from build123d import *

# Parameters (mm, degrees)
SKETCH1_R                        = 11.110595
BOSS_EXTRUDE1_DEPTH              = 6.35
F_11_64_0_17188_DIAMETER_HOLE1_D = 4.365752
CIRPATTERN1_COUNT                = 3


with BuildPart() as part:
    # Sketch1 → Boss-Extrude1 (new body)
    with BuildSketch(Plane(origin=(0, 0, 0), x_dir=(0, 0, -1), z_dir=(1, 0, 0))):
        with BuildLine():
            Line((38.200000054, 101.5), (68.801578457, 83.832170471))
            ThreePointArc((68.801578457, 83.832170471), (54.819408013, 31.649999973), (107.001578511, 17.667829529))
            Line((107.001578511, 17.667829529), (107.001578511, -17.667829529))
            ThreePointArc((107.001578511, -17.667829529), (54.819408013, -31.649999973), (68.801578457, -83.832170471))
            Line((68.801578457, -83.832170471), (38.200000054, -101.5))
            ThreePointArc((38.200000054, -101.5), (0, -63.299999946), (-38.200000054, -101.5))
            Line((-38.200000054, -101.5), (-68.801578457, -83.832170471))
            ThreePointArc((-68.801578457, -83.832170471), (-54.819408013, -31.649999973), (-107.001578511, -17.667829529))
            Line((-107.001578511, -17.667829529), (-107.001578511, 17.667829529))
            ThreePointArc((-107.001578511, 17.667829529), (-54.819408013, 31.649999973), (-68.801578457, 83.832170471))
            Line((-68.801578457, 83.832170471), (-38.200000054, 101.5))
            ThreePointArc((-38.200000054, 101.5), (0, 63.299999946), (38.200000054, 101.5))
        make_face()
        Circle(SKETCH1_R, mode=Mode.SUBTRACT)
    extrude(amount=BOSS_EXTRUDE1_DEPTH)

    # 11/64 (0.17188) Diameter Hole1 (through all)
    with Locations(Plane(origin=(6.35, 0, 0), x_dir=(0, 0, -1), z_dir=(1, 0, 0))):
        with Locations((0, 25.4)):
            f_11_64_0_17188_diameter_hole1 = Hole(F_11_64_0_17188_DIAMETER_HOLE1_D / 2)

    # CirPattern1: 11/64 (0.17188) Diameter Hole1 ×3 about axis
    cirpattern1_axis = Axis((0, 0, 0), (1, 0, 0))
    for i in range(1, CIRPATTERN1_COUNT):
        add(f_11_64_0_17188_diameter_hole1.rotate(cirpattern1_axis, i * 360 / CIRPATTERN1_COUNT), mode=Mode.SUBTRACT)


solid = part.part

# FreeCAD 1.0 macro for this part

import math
import FreeCAD as App
import Part
import Sketcher

V = App.Vector
Q = App.Units.Quantity

doc = App.newDocument("Part")
body = doc.addObject("PartDesign::Body", "Body")

sketch1 = doc.addObject("Sketcher::SketchObject", "Sketch")
body.addObject(sketch1)
sketch1.AttachmentSupport = (doc.YZ_Plane, [""])
sketch1.MapMode = "FlatFace"
sketch1.addGeometry([
    Part.LineSegment(V(84, -69, 0), V(102, -38, 0)),
    Part.ArcOfCircle(Part.Circle(V(102, 0, 0), V(0, 0, 1), 38), math.radians(90), math.radians(270)),
    Part.LineSegment(V(102, 38, 0), V(84, 69, 0)),
    Part.ArcOfCircle(Part.Circle(V(51, 88, 0), V(0, 0, 1), 38), math.radians(150), math.radians(330)),
    Part.LineSegment(V(18, 107, 0), V(-18, 107, 0)),
    Part.ArcOfCircle(Part.Circle(V(-51, 88, 0), V(0, 0, 1), 38), math.radians(-150), math.radians(30)),
    Part.LineSegment(V(-84, 69, 0), V(-102, 38, 0)),
    Part.ArcOfCircle(Part.Circle(V(-102, 0, 0), V(0, 0, 1), 38), math.radians(-90), math.radians(90)),
    Part.LineSegment(V(-102, -38, 0), V(-84, -69, 0)),
    Part.ArcOfCircle(Part.Circle(V(-51, -88, 0), V(0, 0, 1), 38), math.radians(-30), math.radians(150)),
    Part.LineSegment(V(-18, -107, 0), V(18, -107, 0)),
    Part.ArcOfCircle(Part.Circle(V(51, -88, 0), V(0, 0, 1), 38), math.radians(30), math.radians(210)),
    Part.Circle(V(0, 0, 0), V(0, 0, 1), 11),
], False)
sketch1.addConstraint([
    Sketcher.Constraint("Coincident", 0, 2, 1, 2),
    Sketcher.Constraint("Coincident", 1, 1, 2, 1),
    Sketcher.Constraint("Coincident", 2, 2, 3, 2),
    Sketcher.Constraint("Coincident", 3, 1, 4, 1),
    Sketcher.Constraint("Coincident", 4, 2, 5, 2),
    Sketcher.Constraint("Coincident", 5, 1, 6, 1),
    Sketcher.Constraint("Coincident", 6, 2, 7, 2),
    Sketcher.Constraint("Coincident", 7, 1, 8, 1),
    Sketcher.Constraint("Coincident", 8, 2, 9, 2),
    Sketcher.Constraint("Coincident", 9, 1, 10, 1),
    Sketcher.Constraint("Coincident", 10, 2, 11, 2),
    Sketcher.Constraint("Coincident", 11, 1, 0, 1),
    Sketcher.Constraint("Horizontal", 4),
    Sketcher.Constraint("Horizontal", 10),
    Sketcher.Constraint("Coincident", 12, 3, -1, 1),
    Sketcher.Constraint("Equal", 1, 3),
    Sketcher.Constraint("Equal", 3, 5),
    Sketcher.Constraint("Equal", 5, 7),
    Sketcher.Constraint("Equal", 7, 9),
    Sketcher.Constraint("Equal", 9, 11),
    Sketcher.Constraint("Symmetric", 1, 3, 7, 3, -1, 1),
    Sketcher.Constraint("Symmetric", 3, 3, 9, 3, -1, 1),
    Sketcher.Constraint("Symmetric", 5, 3, 11, 3, -1, 1),
    Sketcher.Constraint("Symmetric", 3, 3, 5, 3, -2),
    Sketcher.Constraint("Symmetric", 1, 1, 6, 2, -2),
    Sketcher.Constraint("Parallel", 0, 6),
    Sketcher.Constraint("Parallel", 2, 8),
    Sketcher.Constraint("Horizontal", 2, 2, 5, 1),
    Sketcher.Constraint("Horizontal", 8, 2, 11, 1),
    Sketcher.Constraint("Vertical", 1, 3, 0, 2),
    Sketcher.Constraint("Vertical", 0, 2, 1, 1),
    Sketcher.Constraint("Vertical", 4, 2, 9, 1),
    Sketcher.Constraint("Radius", 1, 38.2),
    Sketcher.Constraint("Angle", 0, Q("60 deg")),
    Sketcher.Constraint("DistanceX", 7, 3, 1, 3, 203.0),
    Sketcher.Constraint("DistanceX", 5, 3, 3, 3, 101.5),
    Sketcher.Constraint("DistanceY", 2, 2, 3, 3, 19.1),
    Sketcher.Constraint("DistanceY", 3, 3, 3, 1, 19.1),
    Sketcher.Constraint("Diameter", 12, 22.22119),
])
pad1 = doc.addObject("PartDesign::Pad", "Pad")
body.addObject(pad1)
pad1.Profile = sketch1
pad1.Length = 6.35

sketch2 = doc.addObject("Sketcher::SketchObject", "Sketch001")
body.addObject(sketch2)
sketch2.AttachmentSupport = (doc.YZ_Plane, [""])
sketch2.MapMode = "FlatFace"
sketch2.AttachmentOffset = App.Placement(V(0, 0, 6.35), App.Rotation())
sketch2.addGeometry(Part.Circle(V(25.4, 0, 0), V(0, 0, 1), 2.2), False)
sketch2.addConstraint([
    Sketcher.Constraint("PointOnObject", 0, 3, -1),
    Sketcher.Constraint("DistanceX", -1, 1, 0, 3, 25.4),
    Sketcher.Constraint("Diameter", 0, 4.365752),
])
doc.recompute()
hole = doc.addObject("PartDesign::Hole", "Hole")
body.addObject(hole)
hole.Profile = sketch2
hole.ThreadType = "None"
hole.Diameter = 4.365752
hole.DepthType = "ThroughAll"
doc.recompute()

polarpattern = doc.addObject("PartDesign::PolarPattern", "PolarPattern")
body.addObject(polarpattern)
polarpattern.Originals = [hole]
polarpattern.Axis = (doc.X_Axis, [""])
polarpattern.Angle = 360
polarpattern.Occurrences = 3
body.Tip = polarpattern

doc.recompute()
